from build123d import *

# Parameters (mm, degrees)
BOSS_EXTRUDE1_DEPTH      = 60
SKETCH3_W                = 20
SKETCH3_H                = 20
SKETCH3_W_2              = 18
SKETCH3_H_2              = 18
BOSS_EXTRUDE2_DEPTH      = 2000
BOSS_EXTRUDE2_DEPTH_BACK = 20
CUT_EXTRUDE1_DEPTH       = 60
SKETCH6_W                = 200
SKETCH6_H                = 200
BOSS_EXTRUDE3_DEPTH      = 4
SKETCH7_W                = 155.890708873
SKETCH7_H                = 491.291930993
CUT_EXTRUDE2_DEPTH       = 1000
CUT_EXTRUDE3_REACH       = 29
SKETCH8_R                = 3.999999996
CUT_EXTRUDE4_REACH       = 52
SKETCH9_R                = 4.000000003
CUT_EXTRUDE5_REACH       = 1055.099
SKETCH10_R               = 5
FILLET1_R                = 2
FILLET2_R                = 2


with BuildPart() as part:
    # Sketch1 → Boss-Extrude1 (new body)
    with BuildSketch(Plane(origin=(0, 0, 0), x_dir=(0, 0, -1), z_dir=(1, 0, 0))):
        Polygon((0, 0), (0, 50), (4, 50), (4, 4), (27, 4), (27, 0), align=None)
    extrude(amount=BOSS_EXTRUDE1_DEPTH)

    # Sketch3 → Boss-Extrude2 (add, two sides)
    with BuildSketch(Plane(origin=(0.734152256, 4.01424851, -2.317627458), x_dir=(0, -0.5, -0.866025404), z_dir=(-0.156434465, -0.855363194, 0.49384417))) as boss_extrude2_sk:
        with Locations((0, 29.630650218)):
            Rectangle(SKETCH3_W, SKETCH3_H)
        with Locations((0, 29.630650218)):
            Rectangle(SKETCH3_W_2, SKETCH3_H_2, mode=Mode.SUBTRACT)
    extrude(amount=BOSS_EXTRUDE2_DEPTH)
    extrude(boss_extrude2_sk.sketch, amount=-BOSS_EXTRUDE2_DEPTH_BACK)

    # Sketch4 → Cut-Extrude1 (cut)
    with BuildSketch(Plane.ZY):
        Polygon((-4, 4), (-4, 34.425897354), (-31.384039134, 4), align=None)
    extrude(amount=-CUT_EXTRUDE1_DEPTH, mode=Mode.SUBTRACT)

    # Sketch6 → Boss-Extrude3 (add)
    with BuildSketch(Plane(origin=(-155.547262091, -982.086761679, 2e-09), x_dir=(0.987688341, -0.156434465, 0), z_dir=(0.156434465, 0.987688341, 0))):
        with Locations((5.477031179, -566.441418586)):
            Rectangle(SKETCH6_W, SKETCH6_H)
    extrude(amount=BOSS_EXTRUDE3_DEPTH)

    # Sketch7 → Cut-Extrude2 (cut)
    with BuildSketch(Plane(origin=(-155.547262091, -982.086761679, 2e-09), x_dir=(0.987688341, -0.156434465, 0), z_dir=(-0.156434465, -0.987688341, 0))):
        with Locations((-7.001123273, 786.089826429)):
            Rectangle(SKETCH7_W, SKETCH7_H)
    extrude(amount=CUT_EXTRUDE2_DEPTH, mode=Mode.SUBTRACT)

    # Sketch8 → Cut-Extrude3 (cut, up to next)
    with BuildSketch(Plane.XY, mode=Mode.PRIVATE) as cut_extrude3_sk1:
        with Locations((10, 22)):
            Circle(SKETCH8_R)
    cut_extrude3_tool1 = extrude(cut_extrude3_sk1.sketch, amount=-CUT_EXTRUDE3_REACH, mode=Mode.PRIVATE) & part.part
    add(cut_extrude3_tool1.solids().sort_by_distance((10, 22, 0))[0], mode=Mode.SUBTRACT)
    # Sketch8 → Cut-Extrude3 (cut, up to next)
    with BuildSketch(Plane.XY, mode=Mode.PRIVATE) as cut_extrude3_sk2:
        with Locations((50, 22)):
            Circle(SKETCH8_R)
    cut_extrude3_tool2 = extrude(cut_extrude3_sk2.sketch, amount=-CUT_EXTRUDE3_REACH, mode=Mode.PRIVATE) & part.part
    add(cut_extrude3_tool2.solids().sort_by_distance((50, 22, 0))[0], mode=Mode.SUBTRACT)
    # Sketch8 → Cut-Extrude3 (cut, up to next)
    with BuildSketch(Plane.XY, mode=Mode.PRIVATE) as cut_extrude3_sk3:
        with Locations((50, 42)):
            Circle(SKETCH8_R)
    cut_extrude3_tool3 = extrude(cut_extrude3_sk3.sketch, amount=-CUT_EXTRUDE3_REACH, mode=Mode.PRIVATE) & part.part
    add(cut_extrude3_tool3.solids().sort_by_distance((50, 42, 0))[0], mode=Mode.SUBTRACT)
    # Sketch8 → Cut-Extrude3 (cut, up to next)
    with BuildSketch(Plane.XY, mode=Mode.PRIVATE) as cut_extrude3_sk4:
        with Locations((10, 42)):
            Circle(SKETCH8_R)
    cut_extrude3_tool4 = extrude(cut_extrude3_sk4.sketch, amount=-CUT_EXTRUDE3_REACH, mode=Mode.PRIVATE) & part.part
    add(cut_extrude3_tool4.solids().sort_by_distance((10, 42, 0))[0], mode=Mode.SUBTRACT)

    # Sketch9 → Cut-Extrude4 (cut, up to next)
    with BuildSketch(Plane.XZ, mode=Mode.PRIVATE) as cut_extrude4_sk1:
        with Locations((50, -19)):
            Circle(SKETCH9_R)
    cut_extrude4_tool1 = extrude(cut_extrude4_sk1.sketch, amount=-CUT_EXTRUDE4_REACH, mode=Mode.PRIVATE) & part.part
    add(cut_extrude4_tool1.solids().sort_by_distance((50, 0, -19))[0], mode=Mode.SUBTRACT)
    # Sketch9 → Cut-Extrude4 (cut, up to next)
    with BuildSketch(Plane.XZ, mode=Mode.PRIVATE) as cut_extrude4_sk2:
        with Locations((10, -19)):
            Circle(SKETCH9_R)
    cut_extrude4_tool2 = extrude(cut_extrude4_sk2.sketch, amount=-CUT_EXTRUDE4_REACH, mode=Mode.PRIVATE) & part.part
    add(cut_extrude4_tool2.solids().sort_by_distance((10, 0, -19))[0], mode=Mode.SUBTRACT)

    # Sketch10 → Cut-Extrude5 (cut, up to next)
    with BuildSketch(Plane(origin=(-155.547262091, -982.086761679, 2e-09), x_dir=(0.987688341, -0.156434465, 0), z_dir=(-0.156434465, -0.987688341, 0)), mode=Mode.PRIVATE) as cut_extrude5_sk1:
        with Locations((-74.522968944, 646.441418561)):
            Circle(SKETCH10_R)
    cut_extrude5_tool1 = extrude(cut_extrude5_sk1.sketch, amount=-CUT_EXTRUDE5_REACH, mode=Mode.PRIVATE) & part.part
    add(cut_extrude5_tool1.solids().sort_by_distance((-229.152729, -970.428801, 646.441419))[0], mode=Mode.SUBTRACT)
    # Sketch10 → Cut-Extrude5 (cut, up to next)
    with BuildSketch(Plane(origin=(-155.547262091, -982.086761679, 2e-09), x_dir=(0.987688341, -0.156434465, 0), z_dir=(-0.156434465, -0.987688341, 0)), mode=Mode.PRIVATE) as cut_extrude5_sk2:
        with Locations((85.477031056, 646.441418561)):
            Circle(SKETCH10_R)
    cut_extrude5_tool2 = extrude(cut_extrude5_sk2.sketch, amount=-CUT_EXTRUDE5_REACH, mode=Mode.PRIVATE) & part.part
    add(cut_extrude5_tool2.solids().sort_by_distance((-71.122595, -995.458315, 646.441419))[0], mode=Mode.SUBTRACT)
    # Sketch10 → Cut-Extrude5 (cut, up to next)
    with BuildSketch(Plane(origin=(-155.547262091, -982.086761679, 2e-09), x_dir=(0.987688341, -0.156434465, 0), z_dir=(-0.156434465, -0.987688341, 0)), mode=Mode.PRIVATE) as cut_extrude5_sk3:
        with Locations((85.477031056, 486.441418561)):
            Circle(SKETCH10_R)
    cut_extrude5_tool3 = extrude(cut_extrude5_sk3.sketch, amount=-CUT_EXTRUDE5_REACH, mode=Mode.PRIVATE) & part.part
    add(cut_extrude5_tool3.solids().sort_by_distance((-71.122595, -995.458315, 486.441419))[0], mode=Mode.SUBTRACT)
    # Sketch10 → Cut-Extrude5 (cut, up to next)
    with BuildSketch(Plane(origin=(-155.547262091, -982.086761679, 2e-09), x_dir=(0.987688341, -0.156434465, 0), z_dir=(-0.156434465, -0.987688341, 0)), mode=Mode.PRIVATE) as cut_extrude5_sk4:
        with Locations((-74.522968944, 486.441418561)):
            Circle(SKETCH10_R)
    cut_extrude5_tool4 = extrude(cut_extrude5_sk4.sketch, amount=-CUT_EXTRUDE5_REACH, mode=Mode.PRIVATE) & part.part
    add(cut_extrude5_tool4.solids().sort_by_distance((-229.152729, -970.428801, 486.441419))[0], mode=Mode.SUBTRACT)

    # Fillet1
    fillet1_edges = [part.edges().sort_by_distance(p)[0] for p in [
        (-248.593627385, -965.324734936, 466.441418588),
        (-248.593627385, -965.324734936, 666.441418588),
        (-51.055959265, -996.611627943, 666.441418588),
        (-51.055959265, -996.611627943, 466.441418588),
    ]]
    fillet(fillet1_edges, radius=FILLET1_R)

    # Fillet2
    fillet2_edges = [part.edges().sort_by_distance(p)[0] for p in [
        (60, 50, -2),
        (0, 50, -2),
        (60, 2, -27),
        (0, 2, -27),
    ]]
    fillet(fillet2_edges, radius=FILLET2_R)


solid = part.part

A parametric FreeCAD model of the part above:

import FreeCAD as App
import Part
import Sketcher

V = App.Vector
Q = App.Units.Quantity


def edges_at(feature, points):
    """Names of the edges that pass closest to the given points."""
    edges = feature.Shape.Edges
    near = lambda p: min(range(len(edges)), key=lambda i: edges[i].distToShape(Part.Vertex(*p))[0])
    return sorted({f"Edge{near(p) + 1}" for p in points})


def add_polygon(sketch, points):
    """Adds a closed chain of lines whose ends are joined by coincident constraints."""
    first, n = sketch.GeometryCount, len(points)
    for a, b in zip(points, points[1:] + points[:1]):
        sketch.addGeometry(Part.LineSegment(App.Vector(*a, 0), App.Vector(*b, 0)), False)
    for i in range(n):
        sketch.addConstraint(Sketcher.Constraint("Coincident", first + i, 2, first + (i + 1) % n, 1))

doc = App.newDocument("Part")
params = doc.addObject("Spreadsheet::Sheet", "Params")
for row, (alias, value) in enumerate([
    ("sketch1_width", "50 mm"),
    ("sketch1_width2", "4 mm"),
    ("sketch1_height", "27 mm"),
    ("pad1_length", "60 mm"),
    ("sketch2_width", "20 mm"),
    ("sketch2_width2", "18 mm"),
    ("pad2_length", "2000 mm"),
    ("pad2_length2", "20 mm"),
    ("pocket1_length", "60 mm"),
    ("sketch4_width", "200 mm"),
    ("pad3_length", "4 mm"),
    ("pocket2_length", "1000 mm"),
    ("sketch6_diameter", "8 mm"),
    ("sketch7_diameter", "8 mm"),
    ("sketch8_diameter", "8 mm"),
    ("sketch9_diameter", "8 mm"),
    ("sketch10_diameter", "8 mm"),
    ("sketch11_diameter", "8 mm"),
    ("sketch12_diameter", "10 mm"),
    ("sketch13_diameter", "10 mm"),
    ("sketch14_diameter", "10 mm"),
    ("sketch15_diameter", "10 mm"),
    ("fillet_radius", "2 mm"),
    ("fillet2_radius", "2 mm"),
], start=1):
    params.set(f"A{row}", alias)
    params.set(f"B{row}", "=" + value)
    params.setAlias(f"B{row}", alias)

body = doc.addObject("PartDesign::Body", "Body")

# Sketch on YZ plane
sketch1 = body.newObject("Sketcher::SketchObject", "Sketch")
sketch1.AttachmentSupport = (doc.getObject("YZ_Plane"), [""])
sketch1.MapMode = "FlatFace"
add_polygon(sketch1, [(50, 0), (0, 0), (0, -27), (4, -27), (4, -4), (50, -4)])  # lines 0-5
sketch1.addConstraint(Sketcher.Constraint("Horizontal", 0))
sketch1.addConstraint(Sketcher.Constraint("Vertical", 1))
sketch1.addConstraint(Sketcher.Constraint("Horizontal", 2))
sketch1.addConstraint(Sketcher.Constraint("Vertical", 3))
sketch1.addConstraint(Sketcher.Constraint("Horizontal", 4))
sketch1.addConstraint(Sketcher.Constraint("Vertical", 5))
sketch1.addConstraint(Sketcher.Constraint("Coincident", 0, 2, -1, 1))
sketch1.addConstraint(Sketcher.Constraint("Equal", 2, 5))
sketch1.addConstraint(Sketcher.Constraint("DistanceX", 0, 2, 0, 1, Q("50 mm")))
sketch1.addConstraint(Sketcher.Constraint("DistanceX", 2, 1, 2, 2, Q("4 mm")))
sketch1.addConstraint(Sketcher.Constraint("DistanceY", 1, 2, 1, 1, Q("27 mm")))
sketch1.setExpression("Constraints[14]", "Params.sketch1_width")
sketch1.setExpression("Constraints[15]", "Params.sketch1_width2")
sketch1.setExpression("Constraints[16]", "Params.sketch1_height")
pad1 = body.newObject("PartDesign::Pad", "Pad")
pad1.Profile = sketch1
pad1.setExpression("Length", "Params.pad1_length")

# Sketch on an angled plane
sketch2 = body.newObject("Sketcher::SketchObject", "Sketch001")
sketch2.Placement = App.Placement(V(0.734152, 4.014249, -2.317627), App.Rotation(V(0, -0.5, -0.866025404), V(0.987688341, -0.135476221, 0.078217232), V(-0.156434465, -0.855363194, 0.49384417), "ZXY"))
add_polygon(sketch2, [(-10, 40), (-10, 20), (10, 20), (10, 40)])  # lines 0-3
add_polygon(sketch2, [(9, 21), (-9, 21), (-9, 39), (9, 39)])  # lines 4-7
sketch2.addConstraint(Sketcher.Constraint("Vertical", 0))
sketch2.addConstraint(Sketcher.Constraint("Horizontal", 1))
sketch2.addConstraint(Sketcher.Constraint("Vertical", 2))
sketch2.addConstraint(Sketcher.Constraint("Horizontal", 3))
sketch2.addConstraint(Sketcher.Constraint("Horizontal", 4))
sketch2.addConstraint(Sketcher.Constraint("Vertical", 5))
sketch2.addConstraint(Sketcher.Constraint("Horizontal", 6))
sketch2.addConstraint(Sketcher.Constraint("Vertical", 7))
sketch2.addConstraint(Sketcher.Constraint("Equal", 3, 0))
sketch2.addConstraint(Sketcher.Constraint("Equal", 6, 5))
sketch2.addConstraint(Sketcher.Constraint("DistanceX", 1, 1, 1, 2, Q("20 mm")))
sketch2.addConstraint(Sketcher.Constraint("DistanceX", 4, 2, 4, 1, Q("18 mm")))
sketch2.addConstraint(Sketcher.Constraint("DistanceX", 0, 2, -1, 1, Q("10 mm")))
sketch2.addConstraint(Sketcher.Constraint("DistanceX", 4, 2, -1, 1, Q("9 mm")))
sketch2.addConstraint(Sketcher.Constraint("DistanceY", 0, 2, 4, 2, Q("1 mm")))
sketch2.addConstraint(Sketcher.Constraint("DistanceY", -1, 1, 0, 2, Q("19.63065 mm")))
sketch2.setExpression("Constraints[18]", "Params.sketch2_width")
sketch2.setExpression("Constraints[19]", "Params.sketch2_width2")
pad2 = body.newObject("PartDesign::Pad", "Pad001")
pad2.Profile = sketch2
pad2.Type = "TwoLengths"
pad2.setExpression("Length", "Params.pad2_length")
pad2.setExpression("Length2", "Params.pad2_length2")

# Sketch on YZ plane
sketch3 = body.newObject("Sketcher::SketchObject", "Sketch002")
sketch3.AttachmentSupport = (doc.getObject("YZ_Plane"), [""])
sketch3.MapMode = "FlatFace"
add_polygon(sketch3, [(4, -4), (34, -4), (4, -31)])  # lines 0-2
sketch3.addConstraint(Sketcher.Constraint("Horizontal", 0))
sketch3.addConstraint(Sketcher.Constraint("Vertical", 2))
sketch3.addConstraint(Sketcher.Constraint("DistanceY", 0, 2, -1, 1, Q("4 mm")))
sketch3.addConstraint(Sketcher.Constraint("DistanceX", -1, 1, 1, 2, Q("4 mm")))
sketch3.addConstraint(Sketcher.Constraint("DistanceY", 2, 1, 2, 2, Q("27.384039 mm")))
sketch3.addConstraint(Sketcher.Constraint("DistanceX", 0, 1, 0, 2, Q("30.425897 mm")))
pocket1 = body.newObject("PartDesign::Pocket", "Pocket")
pocket1.Profile = sketch3
pocket1.setExpression("Length", "Params.pocket1_length")
pocket1.Reversed = True

# Sketch on an angled plane
sketch4 = body.newObject("Sketcher::SketchObject", "Sketch003")
sketch4.Placement = App.Placement(V(-155.547262, -982.086762, 0), App.Rotation(V(0.987688341, -0.156434465, 0), V(0, 0, -1.000000001), V(0.156434465, 0.987688341, 0), "ZXY"))
add_polygon(sketch4, [(-95, -466), (-95, -666), (105, -666), (105, -466)])  # lines 0-3
sketch4.addConstraint(Sketcher.Constraint("Vertical", 0))
sketch4.addConstraint(Sketcher.Constraint("Horizontal", 1))
sketch4.addConstraint(Sketcher.Constraint("Vertical", 2))
sketch4.addConstraint(Sketcher.Constraint("Horizontal", 3))
sketch4.addConstraint(Sketcher.Constraint("Equal", 3, 0))
sketch4.addConstraint(Sketcher.Constraint("DistanceX", 1, 1, 1, 2, Q("200 mm")))
sketch4.addConstraint(Sketcher.Constraint("DistanceX", 0, 2, -1, 1, Q("94.522969 mm")))
sketch4.addConstraint(Sketcher.Constraint("DistanceY", 0, 2, -1, 1, Q("666.44142 mm")))
sketch4.setExpression("Constraints[9]", "Params.sketch4_width")
pad3 = body.newObject("PartDesign::Pad", "Pad002")
pad3.Profile = sketch4
pad3.setExpression("Length", "Params.pad3_length")

# Sketch on an angled plane
sketch5 = body.newObject("Sketcher::SketchObject", "Sketch004")
sketch5.Placement = App.Placement(V(-155.547262, -982.086762, 0), App.Rotation(V(0.987688341, -0.156434465, 0), V(0, 0, 1.000000001), V(-0.156434465, -0.987688341, 0), "ZXY"))
add_polygon(sketch5, [(-85, 1032), (-85, 540), (71, 540), (71, 1032)])  # lines 0-3
sketch5.addConstraint(Sketcher.Constraint("Vertical", 0))
sketch5.addConstraint(Sketcher.Constraint("Horizontal", 1))
sketch5.addConstraint(Sketcher.Constraint("Vertical", 2))
sketch5.addConstraint(Sketcher.Constraint("Horizontal", 3))
sketch5.addConstraint(Sketcher.Constraint("DistanceX", 1, 1, 1, 2, Q("155.890709 mm")))
sketch5.addConstraint(Sketcher.Constraint("DistanceY", 0, 2, 0, 1, Q("491.291932 mm")))
sketch5.addConstraint(Sketcher.Constraint("DistanceY", -1, 1, 0, 2, Q("540.443862 mm")))
sketch5.addConstraint(Sketcher.Constraint("DistanceX", -1, 1, 1, 2, Q("70.944231 mm")))
pocket2 = body.newObject("PartDesign::Pocket", "Pocket001")
pocket2.Profile = sketch5
pocket2.setExpression("Length", "Params.pocket2_length")
pocket2.Reversed = True

# Sketch on XY plane
sketch6 = body.newObject("Sketcher::SketchObject", "Sketch005")
sketch6.AttachmentSupport = (doc.getObject("XY_Plane"), [""])
sketch6.MapMode = "FlatFace"
sketch6.addGeometry(Part.Circle(V(10, 22, 0), V(0, 0, 1), 4), False)
sketch6.addConstraint(Sketcher.Constraint("Diameter", 0, Q("8 mm")))
sketch6.addConstraint(Sketcher.Constraint("DistanceX", -1, 1, 0, 3, Q("10 mm")))
sketch6.addConstraint(Sketcher.Constraint("DistanceY", -1, 1, 0, 3, Q("22 mm")))
sketch6.setExpression("Constraints[0]", "Params.sketch6_diameter")
pocket3 = body.newObject("PartDesign::Pocket", "Pocket002")
pocket3.Profile = sketch6
pocket3.Type = "UpToFirst"

# Sketch on XY plane
sketch7 = body.newObject("Sketcher::SketchObject", "Sketch006")
sketch7.AttachmentSupport = (doc.getObject("XY_Plane"), [""])
sketch7.MapMode = "FlatFace"
sketch7.addGeometry(Part.Circle(V(50, 22, 0), V(0, 0, 1), 4), False)
sketch7.addConstraint(Sketcher.Constraint("Diameter", 0, Q("8 mm")))
sketch7.addConstraint(Sketcher.Constraint("DistanceX", -1, 1, 0, 3, Q("50 mm")))
sketch7.addConstraint(Sketcher.Constraint("DistanceY", -1, 1, 0, 3, Q("22 mm")))
sketch7.setExpression("Constraints[0]", "Params.sketch7_diameter")
pocket4 = body.newObject("PartDesign::Pocket", "Pocket003")
pocket4.Profile = sketch7
pocket4.Type = "UpToFirst"

# Sketch on XY plane
sketch8 = body.newObject("Sketcher::SketchObject", "Sketch007")
sketch8.AttachmentSupport = (doc.getObject("XY_Plane"), [""])
sketch8.MapMode = "FlatFace"
sketch8.addGeometry(Part.Circle(V(50, 42, 0), V(0, 0, 1), 4), False)
sketch8.addConstraint(Sketcher.Constraint("Diameter", 0, Q("8 mm")))
sketch8.addConstraint(Sketcher.Constraint("DistanceX", -1, 1, 0, 3, Q("50 mm")))
sketch8.addConstraint(Sketcher.Constraint("DistanceY", -1, 1, 0, 3, Q("42 mm")))
sketch8.setExpression("Constraints[0]", "Params.sketch8_diameter")
pocket5 = body.newObject("PartDesign::Pocket", "Pocket004")
pocket5.Profile = sketch8
pocket5.Type = "UpToFirst"

# Sketch on XY plane
sketch9 = body.newObject("Sketcher::SketchObject", "Sketch008")
sketch9.AttachmentSupport = (doc.getObject("XY_Plane"), [""])
sketch9.MapMode = "FlatFace"
sketch9.addGeometry(Part.Circle(V(10, 42, 0), V(0, 0, 1), 4), False)
sketch9.addConstraint(Sketcher.Constraint("Diameter", 0, Q("8 mm")))
sketch9.addConstraint(Sketcher.Constraint("DistanceX", -1, 1, 0, 3, Q("10 mm")))
sketch9.addConstraint(Sketcher.Constraint("DistanceY", -1, 1, 0, 3, Q("42 mm")))
sketch9.setExpression("Constraints[0]", "Params.sketch9_diameter")
pocket6 = body.newObject("PartDesign::Pocket", "Pocket005")
pocket6.Profile = sketch9
pocket6.Type = "UpToFirst"

# Sketch on XZ plane
sketch10 = body.newObject("Sketcher::SketchObject", "Sketch009")
sketch10.AttachmentSupport = (doc.getObject("XZ_Plane"), [""])
sketch10.MapMode = "FlatFace"
sketch10.addGeometry(Part.Circle(V(50, -19, 0), V(0, 0, 1), 4), False)
sketch10.addConstraint(Sketcher.Constraint("Diameter", 0, Q("8 mm")))
sketch10.addConstraint(Sketcher.Constraint("DistanceX", -1, 1, 0, 3, Q("50 mm")))
sketch10.addConstraint(Sketcher.Constraint("DistanceY", 0, 3, -1, 1, Q("19 mm")))
sketch10.setExpression("Constraints[0]", "Params.sketch10_diameter")
pocket7 = body.newObject("PartDesign::Pocket", "Pocket006")
pocket7.Profile = sketch10
pocket7.Type = "UpToFirst"

# Sketch on XZ plane
sketch11 = body.newObject("Sketcher::SketchObject", "Sketch010")
sketch11.AttachmentSupport = (doc.getObject("XZ_Plane"), [""])
sketch11.MapMode = "FlatFace"
sketch11.addGeometry(Part.Circle(V(10, -19, 0), V(0, 0, 1), 4), False)
sketch11.addConstraint(Sketcher.Constraint("Diameter", 0, Q("8 mm")))
sketch11.addConstraint(Sketcher.Constraint("DistanceX", -1, 1, 0, 3, Q("10 mm")))
sketch11.addConstraint(Sketcher.Constraint("DistanceY", 0, 3, -1, 1, Q("19 mm")))
sketch11.setExpression("Constraints[0]", "Params.sketch11_diameter")
pocket8 = body.newObject("PartDesign::Pocket", "Pocket007")
pocket8.Profile = sketch11
pocket8.Type = "UpToFirst"

# Sketch on an angled plane
sketch12 = body.newObject("Sketcher::SketchObject", "Sketch011")
sketch12.Placement = App.Placement(V(-155.547262, -982.086762, 0), App.Rotation(V(0.987688341, -0.156434465, 0), V(0, 0, 1.000000001), V(-0.156434465, -0.987688341, 0), "ZXY"))
sketch12.addGeometry(Part.Circle(V(-75, 646, 0), V(0, 0, 1), 5), False)
sketch12.addConstraint(Sketcher.Constraint("Diameter", 0, Q("10 mm")))
sketch12.addConstraint(Sketcher.Constraint("DistanceX", 0, 3, -1, 1, Q("74.522969 mm")))
sketch12.addConstraint(Sketcher.Constraint("DistanceY", -1, 1, 0, 3, Q("646.44142 mm")))
sketch12.setExpression("Constraints[0]", "Params.sketch12_diameter")
pocket9 = body.newObject("PartDesign::Pocket", "Pocket008")
pocket9.Profile = sketch12
pocket9.Type = "UpToFirst"

# Sketch on an angled plane
sketch13 = body.newObject("Sketcher::SketchObject", "Sketch012")
sketch13.Placement = App.Placement(V(-155.547262, -982.086762, 0), App.Rotation(V(0.987688341, -0.156434465, 0), V(0, 0, 1.000000001), V(-0.156434465, -0.987688341, 0), "ZXY"))
sketch13.addGeometry(Part.Circle(V(85, 646, 0), V(0, 0, 1), 5), False)
sketch13.addConstraint(Sketcher.Constraint("Diameter", 0, Q("10 mm")))
sketch13.addConstraint(Sketcher.Constraint("DistanceX", -1, 1, 0, 3, Q("85.477031 mm")))
sketch13.addConstraint(Sketcher.Constraint("DistanceY", -1, 1, 0, 3, Q("646.44142 mm")))
sketch13.setExpression("Constraints[0]", "Params.sketch13_diameter")
pocket10 = body.newObject("PartDesign::Pocket", "Pocket009")
pocket10.Profile = sketch13
pocket10.Type = "UpToFirst"

# Sketch on an angled plane
sketch14 = body.newObject("Sketcher::SketchObject", "Sketch013")
sketch14.Placement = App.Placement(V(-155.547262, -982.086762, 0), App.Rotation(V(0.987688341, -0.156434465, 0), V(0, 0, 1.000000001), V(-0.156434465, -0.987688341, 0), "ZXY"))
sketch14.addGeometry(Part.Circle(V(85, 486, 0), V(0, 0, 1), 5), False)
sketch14.addConstraint(Sketcher.Constraint("Diameter", 0, Q("10 mm")))
sketch14.addConstraint(Sketcher.Constraint("DistanceX", -1, 1, 0, 3, Q("85.477031 mm")))
sketch14.addConstraint(Sketcher.Constraint("DistanceY", -1, 1, 0, 3, Q("486.441419 mm")))
sketch14.setExpression("Constraints[0]", "Params.sketch14_diameter")
pocket11 = body.newObject("PartDesign::Pocket", "Pocket010")
pocket11.Profile = sketch14
pocket11.Type = "UpToFirst"

# Sketch on an angled plane
sketch15 = body.newObject("Sketcher::SketchObject", "Sketch014")
sketch15.Placement = App.Placement(V(-155.547262, -982.086762, 0), App.Rotation(V(0.987688341, -0.156434465, 0), V(0, 0, 1.000000001), V(-0.156434465, -0.987688341, 0), "ZXY"))
sketch15.addGeometry(Part.Circle(V(-75, 486, 0), V(0, 0, 1), 5), False)
sketch15.addConstraint(Sketcher.Constraint("Diameter", 0, Q("10 mm")))
sketch15.addConstraint(Sketcher.Constraint("DistanceX", 0, 3, -1, 1, Q("74.522969 mm")))
sketch15.addConstraint(Sketcher.Constraint("DistanceY", -1, 1, 0, 3, Q("486.441419 mm")))
sketch15.setExpression("Constraints[0]", "Params.sketch15_diameter")
pocket12 = body.newObject("PartDesign::Pocket", "Pocket011")
pocket12.Profile = sketch15
pocket12.Type = "UpToFirst"
doc.recompute()

fillet = body.newObject("PartDesign::Fillet", "Fillet")
fillet.Base = (pocket12, edges_at(pocket12, [
    (-248.594, -965.325, 466.441),
    (-248.594, -965.325, 666.441),
    (-51.056, -996.612, 666.441),
    (-51.056, -996.612, 466.441),
]))
fillet.setExpression("Radius", "Params.fillet_radius")
doc.recompute()

fillet2 = body.newObject("PartDesign::Fillet", "Fillet001")
fillet2.Base = (fillet, edges_at(fillet, [
    (60, 50, -2),
    (0, 50, -2),
    (60, 2, -27),
    (0, 2, -27),
]))
fillet2.setExpression("Radius", "Params.fillet2_radius")

doc.recompute()
